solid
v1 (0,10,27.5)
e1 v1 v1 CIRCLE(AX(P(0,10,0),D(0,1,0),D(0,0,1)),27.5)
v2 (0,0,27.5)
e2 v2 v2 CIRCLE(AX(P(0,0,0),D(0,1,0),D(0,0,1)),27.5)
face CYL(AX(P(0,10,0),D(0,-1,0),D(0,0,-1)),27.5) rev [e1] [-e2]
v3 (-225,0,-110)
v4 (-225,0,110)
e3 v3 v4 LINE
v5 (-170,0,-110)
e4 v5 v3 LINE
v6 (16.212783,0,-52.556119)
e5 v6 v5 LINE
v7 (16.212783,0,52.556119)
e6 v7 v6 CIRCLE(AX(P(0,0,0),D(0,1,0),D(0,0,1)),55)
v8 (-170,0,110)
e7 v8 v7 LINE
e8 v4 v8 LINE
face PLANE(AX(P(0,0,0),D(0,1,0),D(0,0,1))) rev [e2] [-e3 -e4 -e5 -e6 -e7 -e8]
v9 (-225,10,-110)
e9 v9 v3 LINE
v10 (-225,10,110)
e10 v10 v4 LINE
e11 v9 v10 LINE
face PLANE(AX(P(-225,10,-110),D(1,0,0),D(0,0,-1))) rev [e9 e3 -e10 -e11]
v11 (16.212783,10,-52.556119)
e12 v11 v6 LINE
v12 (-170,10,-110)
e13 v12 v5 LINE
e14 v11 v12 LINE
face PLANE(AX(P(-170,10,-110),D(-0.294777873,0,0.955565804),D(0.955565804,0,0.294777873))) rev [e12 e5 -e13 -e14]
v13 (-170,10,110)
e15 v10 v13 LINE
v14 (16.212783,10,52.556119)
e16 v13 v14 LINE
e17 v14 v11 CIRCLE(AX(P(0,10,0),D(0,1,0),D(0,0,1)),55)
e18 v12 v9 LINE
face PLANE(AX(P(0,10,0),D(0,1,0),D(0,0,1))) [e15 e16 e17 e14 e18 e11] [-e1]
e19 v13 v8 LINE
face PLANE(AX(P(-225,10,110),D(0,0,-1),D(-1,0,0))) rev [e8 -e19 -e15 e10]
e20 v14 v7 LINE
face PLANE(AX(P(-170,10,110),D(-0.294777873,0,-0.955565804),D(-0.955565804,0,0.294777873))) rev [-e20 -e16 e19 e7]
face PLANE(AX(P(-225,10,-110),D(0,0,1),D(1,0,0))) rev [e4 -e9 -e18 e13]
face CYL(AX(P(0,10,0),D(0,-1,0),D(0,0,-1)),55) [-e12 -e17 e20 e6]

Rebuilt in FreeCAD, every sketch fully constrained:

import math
import FreeCAD as App
import Part
import Sketcher
Q = App.Units.Quantity

doc = App.newDocument("Part")
body = doc.addObject("PartDesign::Body", "Body")

# Sketch on XZ plane
sketch1 = body.newObject("Sketcher::SketchObject", "Sketch")
sketch1.AttachmentSupport = (doc.getObject("XZ_Plane"), [""])
sketch1.MapMode = "FlatFace"
sketch1.addGeometry([
    Part.LineSegment(App.Vector(-225, -110, 0), App.Vector(-225, 110, 0)),  # 0
    Part.LineSegment(App.Vector(-225, 110, 0), App.Vector(-170, 110, 0)),  # 1
    Part.LineSegment(App.Vector(-170, 110, 0), App.Vector(16, 53, 0)),  # 2
    Part.ArcOfCircle(Part.Circle(App.Vector(0, 0, 0), App.Vector(0, 0, 1), 55), math.radians(-73), math.radians(73)),  # 3
    Part.LineSegment(App.Vector(16, -53, 0), App.Vector(-170, -110, 0)),  # 4
    Part.LineSegment(App.Vector(-170, -110, 0), App.Vector(-225, -110, 0)),  # 5
    Part.Circle(App.Vector(0, 0, 0), App.Vector(0, 0, 1), 28),  # 6
], False)
sketch1.addConstraint([
    Sketcher.Constraint("Coincident", 0, 2, 1, 1),
    Sketcher.Constraint("Coincident", 1, 2, 2, 1),
    Sketcher.Constraint("Tangent", 2, 2, 3, 2),
    Sketcher.Constraint("Tangent", 3, 1, 4, 1),
    Sketcher.Constraint("Coincident", 4, 2, 5, 1),
    Sketcher.Constraint("Coincident", 5, 2, 0, 1),
    Sketcher.Constraint("Vertical", 0),
    Sketcher.Constraint("Horizontal", 1),
    Sketcher.Constraint("Horizontal", 5),
    Sketcher.Constraint("Coincident", 3, 3, -1, 1),
    Sketcher.Constraint("Coincident", 6, 3, -1, 1),
    Sketcher.Constraint("Symmetric", 1, 2, 4, 2, -1),
    Sketcher.Constraint("Diameter", 6, Q("55 mm")),
    Sketcher.Constraint("Radius", 3, Q("55 mm")),
    Sketcher.Constraint("DistanceX", 1, 1, 1, 2, Q("55 mm")),
    Sketcher.Constraint("DistanceY", 0, 1, 0, 2, Q("220 mm")),
    Sketcher.Constraint("DistanceX", 0, 2, -1, 1, Q("225 mm")),
])
pad1 = body.newObject("PartDesign::Pad", "Pad")
pad1.Profile = sketch1
pad1.Length = 10
pad1.Reversed = True

doc.recompute()
